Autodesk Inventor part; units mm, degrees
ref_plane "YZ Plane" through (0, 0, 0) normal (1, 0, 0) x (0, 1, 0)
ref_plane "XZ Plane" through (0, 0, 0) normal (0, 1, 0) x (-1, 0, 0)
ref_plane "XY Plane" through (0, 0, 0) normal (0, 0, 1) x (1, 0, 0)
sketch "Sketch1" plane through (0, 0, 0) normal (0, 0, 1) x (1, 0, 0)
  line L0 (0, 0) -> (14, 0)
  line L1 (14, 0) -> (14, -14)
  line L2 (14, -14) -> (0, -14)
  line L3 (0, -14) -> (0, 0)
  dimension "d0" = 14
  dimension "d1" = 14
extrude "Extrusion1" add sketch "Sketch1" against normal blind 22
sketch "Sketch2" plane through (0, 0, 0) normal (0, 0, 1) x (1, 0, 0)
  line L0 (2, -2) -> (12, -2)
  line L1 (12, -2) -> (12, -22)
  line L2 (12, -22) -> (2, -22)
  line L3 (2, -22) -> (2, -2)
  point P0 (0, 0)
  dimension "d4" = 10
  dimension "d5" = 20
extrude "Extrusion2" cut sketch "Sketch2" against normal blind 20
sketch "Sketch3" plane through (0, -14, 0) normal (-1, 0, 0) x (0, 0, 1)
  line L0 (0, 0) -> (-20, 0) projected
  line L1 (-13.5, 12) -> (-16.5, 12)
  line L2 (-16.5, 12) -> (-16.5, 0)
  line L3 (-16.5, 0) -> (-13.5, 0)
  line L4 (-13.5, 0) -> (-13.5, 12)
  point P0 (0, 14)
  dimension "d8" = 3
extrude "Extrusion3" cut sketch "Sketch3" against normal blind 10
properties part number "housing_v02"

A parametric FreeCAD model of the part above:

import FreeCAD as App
import Part
import Sketcher
from FreeCAD import Vector


def add_polygon(sketch, points):
    """Adds a closed chain of lines whose ends are joined by coincident constraints."""
    first, n = sketch.GeometryCount, len(points)
    for a, b in zip(points, points[1:] + points[:1]):
        sketch.addGeometry(Part.LineSegment(App.Vector(*a, 0), App.Vector(*b, 0)), False)
    for i in range(n):
        sketch.addConstraint(Sketcher.Constraint("Coincident", first + i, 2, first + (i + 1) % n, 1))

doc = App.newDocument("Part")
body = doc.addObject("PartDesign::Body", "Body")

sketch1 = body.newObject("Sketcher::SketchObject", "Sketch")
sketch1.AttachmentSupport = (doc.getObject("XY_Plane"), [""])
sketch1.MapMode = "FlatFace"
add_polygon(sketch1, [(14, 0), (0, 0), (0, -14), (14, -14)])
sketch1.addConstraint(Sketcher.Constraint("Horizontal", 0))
sketch1.addConstraint(Sketcher.Constraint("Vertical", 1))
sketch1.addConstraint(Sketcher.Constraint("Horizontal", 2))
sketch1.addConstraint(Sketcher.Constraint("Vertical", 3))
sketch1.addConstraint(Sketcher.Constraint("Coincident", 0, 2, -1, 1))
sketch1.addConstraint(Sketcher.Constraint("Equal", 2, 1))
sketch1.addConstraint(Sketcher.Constraint("DistanceX", 0, 2, 0, 1, 14.0))
pad1 = body.newObject("PartDesign::Pad", "Pad")
pad1.Profile = sketch1
pad1.Length = 22
pad1.Reversed = True

sketch2 = body.newObject("Sketcher::SketchObject", "Sketch001")
sketch2.AttachmentSupport = (doc.getObject("XY_Plane"), [""])
sketch2.MapMode = "FlatFace"
add_polygon(sketch2, [(12, -2), (2, -2), (2, -22), (12, -22)])
sketch2.addConstraint(Sketcher.Constraint("Horizontal", 0))
sketch2.addConstraint(Sketcher.Constraint("Vertical", 1))
sketch2.addConstraint(Sketcher.Constraint("Horizontal", 2))
sketch2.addConstraint(Sketcher.Constraint("Vertical", 3))
sketch2.addConstraint(Sketcher.Constraint("DistanceX", 0, 2, 0, 1, 10.0))
sketch2.addConstraint(Sketcher.Constraint("DistanceY", 1, 2, 1, 1, 20.0))
sketch2.addConstraint(Sketcher.Constraint("DistanceX", -1, 1, 0, 2, 2.0))
sketch2.addConstraint(Sketcher.Constraint("DistanceY", 0, 2, -1, 1, 2.0))
pocket1 = body.newObject("PartDesign::Pocket", "Pocket")
pocket1.Profile = sketch2
pocket1.Length = 20

sketch3 = body.newObject("Sketcher::SketchObject", "Sketch002")
sketch3.AttachmentSupport = (doc.getObject("YZ_Plane"), [""])
sketch3.MapMode = "FlatFace"
add_polygon(sketch3, [(-14, -16.5), (-14, -13.5), (-2, -13.5), (-2, -16.5)])
sketch3.addConstraint(Sketcher.Constraint("Vertical", 0))
sketch3.addConstraint(Sketcher.Constraint("Horizontal", 1))
sketch3.addConstraint(Sketcher.Constraint("Vertical", 2))
sketch3.addConstraint(Sketcher.Constraint("Horizontal", 3))
sketch3.addConstraint(Sketcher.Constraint("DistanceY", 0, 1, 0, 2, 3.0))
sketch3.addConstraint(Sketcher.Constraint("DistanceX", 1, 1, 1, 2, 12.0))
sketch3.addConstraint(Sketcher.Constraint("DistanceX", 0, 2, -1, 1, 14.0))
sketch3.addConstraint(Sketcher.Constraint("DistanceY", 0, 2, -1, 1, 13.5))
pocket2 = body.newObject("PartDesign::Pocket", "Pocket001")
pocket2.Profile = sketch3
pocket2.Length = 10
pocket2.Reversed = True

doc.recompute()
